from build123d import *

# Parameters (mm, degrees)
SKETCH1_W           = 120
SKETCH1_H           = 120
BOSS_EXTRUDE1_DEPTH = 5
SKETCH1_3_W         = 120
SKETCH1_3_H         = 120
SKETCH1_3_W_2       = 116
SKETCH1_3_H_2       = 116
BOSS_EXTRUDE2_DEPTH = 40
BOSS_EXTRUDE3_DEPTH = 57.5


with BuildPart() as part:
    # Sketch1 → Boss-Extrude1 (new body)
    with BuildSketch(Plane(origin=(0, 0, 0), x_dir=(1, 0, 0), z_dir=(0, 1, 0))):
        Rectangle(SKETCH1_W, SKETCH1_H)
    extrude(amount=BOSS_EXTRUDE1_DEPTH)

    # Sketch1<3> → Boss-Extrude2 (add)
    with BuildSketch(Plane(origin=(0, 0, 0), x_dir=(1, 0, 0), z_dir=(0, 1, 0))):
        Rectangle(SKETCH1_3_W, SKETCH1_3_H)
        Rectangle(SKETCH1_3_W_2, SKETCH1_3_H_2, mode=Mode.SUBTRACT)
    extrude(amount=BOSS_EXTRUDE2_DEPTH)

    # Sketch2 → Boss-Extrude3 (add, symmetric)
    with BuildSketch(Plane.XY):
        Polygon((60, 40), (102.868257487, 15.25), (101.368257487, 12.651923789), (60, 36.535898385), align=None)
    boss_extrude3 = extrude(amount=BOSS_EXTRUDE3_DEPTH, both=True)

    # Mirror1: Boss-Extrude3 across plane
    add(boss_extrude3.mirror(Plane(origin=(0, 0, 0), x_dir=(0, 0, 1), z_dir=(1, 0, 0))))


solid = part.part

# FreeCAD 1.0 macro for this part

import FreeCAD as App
import Part
import Sketcher
from FreeCAD import Vector
Q = App.Units.Quantity

doc = App.newDocument("Part")
params = doc.addObject("Spreadsheet::Sheet", "Params")
for row, (alias, value) in enumerate([
    ("sketch1_width", "120 mm"),
    ("pad1_length", "5 mm"),
    ("sketch2_width", "120 mm"),
    ("sketch2_width2", "116 mm"),
    ("pad2_length", "40 mm"),
    ("sketch3_length", "3 mm"),
    ("sketch3_length2", "49.5 mm"),
    ("pad3_length", "115 mm"),
], start=1):
    params.set(f"A{row}", alias)
    params.set(f"B{row}", "=" + value)
    params.setAlias(f"B{row}", alias)

body = doc.addObject("PartDesign::Body", "Body")

# Sketch on XZ plane
sketch1 = doc.addObject("Sketcher::SketchObject", "Sketch")
body.addObject(sketch1)
sketch1.AttachmentSupport = (doc.XZ_Plane, [""])
sketch1.MapMode = "FlatFace"
sketch1.addGeometry([
    Part.LineSegment(Vector(-60, -60, 0), Vector(-60, 60, 0)),
    Part.LineSegment(Vector(-60, 60, 0), Vector(60, 60, 0)),
    Part.LineSegment(Vector(60, 60, 0), Vector(60, -60, 0)),
    Part.LineSegment(Vector(60, -60, 0), Vector(-60, -60, 0)),
], False)
sketch1.addConstraint([
    Sketcher.Constraint("Coincident", 0, 2, 1, 1),
    Sketcher.Constraint("Coincident", 1, 2, 2, 1),
    Sketcher.Constraint("Coincident", 2, 2, 3, 1),
    Sketcher.Constraint("Coincident", 3, 2, 0, 1),
    Sketcher.Constraint("Vertical", 0),
    Sketcher.Constraint("Horizontal", 1),
    Sketcher.Constraint("Vertical", 2),
    Sketcher.Constraint("Horizontal", 3),
    Sketcher.Constraint("Symmetric", 0, 2, 2, 2, -1, 1),
    Sketcher.Constraint("Equal", 3, 0),
    Sketcher.Constraint("DistanceX", 1, 1, 1, 2, 120.0),
])
sketch1.setExpression("Constraints[10]", "Params.sketch1_width")
pad1 = doc.addObject("PartDesign::Pad", "Pad")
body.addObject(pad1)
pad1.Profile = sketch1
pad1.setExpression("Length", "Params.pad1_length")
pad1.Reversed = True

# Sketch on XZ plane
sketch2 = doc.addObject("Sketcher::SketchObject", "Sketch001")
body.addObject(sketch2)
sketch2.AttachmentSupport = (doc.XZ_Plane, [""])
sketch2.MapMode = "FlatFace"
sketch2.addGeometry([
    Part.LineSegment(Vector(-60, -60, 0), Vector(-60, 60, 0)),  # 0
    Part.LineSegment(Vector(-60, 60, 0), Vector(60, 60, 0)),  # 1
    Part.LineSegment(Vector(60, 60, 0), Vector(60, -60, 0)),  # 2
    Part.LineSegment(Vector(60, -60, 0), Vector(-60, -60, 0)),  # 3
    Part.LineSegment(Vector(58, 58, 0), Vector(-58, 58, 0)),  # 4
    Part.LineSegment(Vector(-58, 58, 0), Vector(-58, -58, 0)),  # 5
    Part.LineSegment(Vector(-58, -58, 0), Vector(58, -58, 0)),  # 6
    Part.LineSegment(Vector(58, -58, 0), Vector(58, 58, 0)),  # 7
], False)
sketch2.addConstraint([
    Sketcher.Constraint("Coincident", 0, 2, 1, 1),
    Sketcher.Constraint("Coincident", 1, 2, 2, 1),
    Sketcher.Constraint("Coincident", 2, 2, 3, 1),
    Sketcher.Constraint("Coincident", 3, 2, 0, 1),
    Sketcher.Constraint("Coincident", 4, 2, 5, 1),
    Sketcher.Constraint("Coincident", 5, 2, 6, 1),
    Sketcher.Constraint("Coincident", 6, 2, 7, 1),
    Sketcher.Constraint("Coincident", 7, 2, 4, 1),
    Sketcher.Constraint("Vertical", 0),
    Sketcher.Constraint("Horizontal", 1),
    Sketcher.Constraint("Vertical", 2),
    Sketcher.Constraint("Horizontal", 3),
    Sketcher.Constraint("Horizontal", 4),
    Sketcher.Constraint("Vertical", 5),
    Sketcher.Constraint("Horizontal", 6),
    Sketcher.Constraint("Vertical", 7),
    Sketcher.Constraint("Symmetric", 0, 2, 2, 2, -1, 1),
    Sketcher.Constraint("Symmetric", 4, 2, 6, 2, -1, 1),
    Sketcher.Constraint("Equal", 3, 0),
    Sketcher.Constraint("Equal", 6, 5),
    Sketcher.Constraint("DistanceX", 1, 1, 1, 2, 120.0),
    Sketcher.Constraint("DistanceX", 4, 2, 4, 1, 116.0),
])
sketch2.setExpression("Constraints[20]", "Params.sketch2_width")
sketch2.setExpression("Constraints[21]", "Params.sketch2_width2")
pad2 = doc.addObject("PartDesign::Pad", "Pad001")
body.addObject(pad2)
pad2.Profile = sketch2
pad2.setExpression("Length", "Params.pad2_length")
pad2.Reversed = True

# Sketch on XY plane
sketch3 = doc.addObject("Sketcher::SketchObject", "Sketch002")
body.addObject(sketch3)
sketch3.AttachmentSupport = (doc.XY_Plane, [""])
sketch3.MapMode = "FlatFace"
sketch3.addGeometry([
    Part.LineSegment(Vector(102.868257, 15.25, 0), Vector(60, 40, 0)),
    Part.LineSegment(Vector(60, 40, 0), Vector(60, 36.535898, 0)),
    Part.LineSegment(Vector(60, 36.535898, 0), Vector(101.368257, 12.651924, 0)),
    Part.LineSegment(Vector(101.368257, 12.651924, 0), Vector(102.868257, 15.25, 0)),
], False)
sketch3.addConstraint([
    Sketcher.Constraint("Coincident", 0, 2, 1, 1),
    Sketcher.Constraint("Coincident", 1, 2, 2, 1),
    Sketcher.Constraint("Coincident", 2, 2, 3, 1),
    Sketcher.Constraint("Coincident", 3, 2, 0, 1),
    Sketcher.Constraint("Vertical", 1),
    Sketcher.Constraint("Parallel", 0, 2),
    Sketcher.Constraint("Perpendicular", 2, 3),
    Sketcher.Constraint("Angle", 0, Q("150 deg")),
    Sketcher.Constraint("Distance", 3, 3.0),
    Sketcher.Constraint("DistanceX", -1, 1, 0, 2, 60.0),
    Sketcher.Constraint("DistanceY", -1, 1, 0, 2, 40.0),
    Sketcher.Constraint("Distance", 0, 49.5),
])
sketch3.setExpression("Constraints[8]", "Params.sketch3_length")
sketch3.setExpression("Constraints[11]", "Params.sketch3_length2")
pad3 = doc.addObject("PartDesign::Pad", "Pad002")
body.addObject(pad3)
pad3.Profile = sketch3
pad3.setExpression("Length", "Params.pad3_length")
pad3.Midplane = True
doc.recompute()

mirrored = doc.addObject("PartDesign::Mirrored", "Mirrored")
body.addObject(mirrored)
mirrored.Originals = [pad3]
mirrored.MirrorPlane = (doc.YZ_Plane, [""])
body.Tip = mirrored

doc.recompute()
